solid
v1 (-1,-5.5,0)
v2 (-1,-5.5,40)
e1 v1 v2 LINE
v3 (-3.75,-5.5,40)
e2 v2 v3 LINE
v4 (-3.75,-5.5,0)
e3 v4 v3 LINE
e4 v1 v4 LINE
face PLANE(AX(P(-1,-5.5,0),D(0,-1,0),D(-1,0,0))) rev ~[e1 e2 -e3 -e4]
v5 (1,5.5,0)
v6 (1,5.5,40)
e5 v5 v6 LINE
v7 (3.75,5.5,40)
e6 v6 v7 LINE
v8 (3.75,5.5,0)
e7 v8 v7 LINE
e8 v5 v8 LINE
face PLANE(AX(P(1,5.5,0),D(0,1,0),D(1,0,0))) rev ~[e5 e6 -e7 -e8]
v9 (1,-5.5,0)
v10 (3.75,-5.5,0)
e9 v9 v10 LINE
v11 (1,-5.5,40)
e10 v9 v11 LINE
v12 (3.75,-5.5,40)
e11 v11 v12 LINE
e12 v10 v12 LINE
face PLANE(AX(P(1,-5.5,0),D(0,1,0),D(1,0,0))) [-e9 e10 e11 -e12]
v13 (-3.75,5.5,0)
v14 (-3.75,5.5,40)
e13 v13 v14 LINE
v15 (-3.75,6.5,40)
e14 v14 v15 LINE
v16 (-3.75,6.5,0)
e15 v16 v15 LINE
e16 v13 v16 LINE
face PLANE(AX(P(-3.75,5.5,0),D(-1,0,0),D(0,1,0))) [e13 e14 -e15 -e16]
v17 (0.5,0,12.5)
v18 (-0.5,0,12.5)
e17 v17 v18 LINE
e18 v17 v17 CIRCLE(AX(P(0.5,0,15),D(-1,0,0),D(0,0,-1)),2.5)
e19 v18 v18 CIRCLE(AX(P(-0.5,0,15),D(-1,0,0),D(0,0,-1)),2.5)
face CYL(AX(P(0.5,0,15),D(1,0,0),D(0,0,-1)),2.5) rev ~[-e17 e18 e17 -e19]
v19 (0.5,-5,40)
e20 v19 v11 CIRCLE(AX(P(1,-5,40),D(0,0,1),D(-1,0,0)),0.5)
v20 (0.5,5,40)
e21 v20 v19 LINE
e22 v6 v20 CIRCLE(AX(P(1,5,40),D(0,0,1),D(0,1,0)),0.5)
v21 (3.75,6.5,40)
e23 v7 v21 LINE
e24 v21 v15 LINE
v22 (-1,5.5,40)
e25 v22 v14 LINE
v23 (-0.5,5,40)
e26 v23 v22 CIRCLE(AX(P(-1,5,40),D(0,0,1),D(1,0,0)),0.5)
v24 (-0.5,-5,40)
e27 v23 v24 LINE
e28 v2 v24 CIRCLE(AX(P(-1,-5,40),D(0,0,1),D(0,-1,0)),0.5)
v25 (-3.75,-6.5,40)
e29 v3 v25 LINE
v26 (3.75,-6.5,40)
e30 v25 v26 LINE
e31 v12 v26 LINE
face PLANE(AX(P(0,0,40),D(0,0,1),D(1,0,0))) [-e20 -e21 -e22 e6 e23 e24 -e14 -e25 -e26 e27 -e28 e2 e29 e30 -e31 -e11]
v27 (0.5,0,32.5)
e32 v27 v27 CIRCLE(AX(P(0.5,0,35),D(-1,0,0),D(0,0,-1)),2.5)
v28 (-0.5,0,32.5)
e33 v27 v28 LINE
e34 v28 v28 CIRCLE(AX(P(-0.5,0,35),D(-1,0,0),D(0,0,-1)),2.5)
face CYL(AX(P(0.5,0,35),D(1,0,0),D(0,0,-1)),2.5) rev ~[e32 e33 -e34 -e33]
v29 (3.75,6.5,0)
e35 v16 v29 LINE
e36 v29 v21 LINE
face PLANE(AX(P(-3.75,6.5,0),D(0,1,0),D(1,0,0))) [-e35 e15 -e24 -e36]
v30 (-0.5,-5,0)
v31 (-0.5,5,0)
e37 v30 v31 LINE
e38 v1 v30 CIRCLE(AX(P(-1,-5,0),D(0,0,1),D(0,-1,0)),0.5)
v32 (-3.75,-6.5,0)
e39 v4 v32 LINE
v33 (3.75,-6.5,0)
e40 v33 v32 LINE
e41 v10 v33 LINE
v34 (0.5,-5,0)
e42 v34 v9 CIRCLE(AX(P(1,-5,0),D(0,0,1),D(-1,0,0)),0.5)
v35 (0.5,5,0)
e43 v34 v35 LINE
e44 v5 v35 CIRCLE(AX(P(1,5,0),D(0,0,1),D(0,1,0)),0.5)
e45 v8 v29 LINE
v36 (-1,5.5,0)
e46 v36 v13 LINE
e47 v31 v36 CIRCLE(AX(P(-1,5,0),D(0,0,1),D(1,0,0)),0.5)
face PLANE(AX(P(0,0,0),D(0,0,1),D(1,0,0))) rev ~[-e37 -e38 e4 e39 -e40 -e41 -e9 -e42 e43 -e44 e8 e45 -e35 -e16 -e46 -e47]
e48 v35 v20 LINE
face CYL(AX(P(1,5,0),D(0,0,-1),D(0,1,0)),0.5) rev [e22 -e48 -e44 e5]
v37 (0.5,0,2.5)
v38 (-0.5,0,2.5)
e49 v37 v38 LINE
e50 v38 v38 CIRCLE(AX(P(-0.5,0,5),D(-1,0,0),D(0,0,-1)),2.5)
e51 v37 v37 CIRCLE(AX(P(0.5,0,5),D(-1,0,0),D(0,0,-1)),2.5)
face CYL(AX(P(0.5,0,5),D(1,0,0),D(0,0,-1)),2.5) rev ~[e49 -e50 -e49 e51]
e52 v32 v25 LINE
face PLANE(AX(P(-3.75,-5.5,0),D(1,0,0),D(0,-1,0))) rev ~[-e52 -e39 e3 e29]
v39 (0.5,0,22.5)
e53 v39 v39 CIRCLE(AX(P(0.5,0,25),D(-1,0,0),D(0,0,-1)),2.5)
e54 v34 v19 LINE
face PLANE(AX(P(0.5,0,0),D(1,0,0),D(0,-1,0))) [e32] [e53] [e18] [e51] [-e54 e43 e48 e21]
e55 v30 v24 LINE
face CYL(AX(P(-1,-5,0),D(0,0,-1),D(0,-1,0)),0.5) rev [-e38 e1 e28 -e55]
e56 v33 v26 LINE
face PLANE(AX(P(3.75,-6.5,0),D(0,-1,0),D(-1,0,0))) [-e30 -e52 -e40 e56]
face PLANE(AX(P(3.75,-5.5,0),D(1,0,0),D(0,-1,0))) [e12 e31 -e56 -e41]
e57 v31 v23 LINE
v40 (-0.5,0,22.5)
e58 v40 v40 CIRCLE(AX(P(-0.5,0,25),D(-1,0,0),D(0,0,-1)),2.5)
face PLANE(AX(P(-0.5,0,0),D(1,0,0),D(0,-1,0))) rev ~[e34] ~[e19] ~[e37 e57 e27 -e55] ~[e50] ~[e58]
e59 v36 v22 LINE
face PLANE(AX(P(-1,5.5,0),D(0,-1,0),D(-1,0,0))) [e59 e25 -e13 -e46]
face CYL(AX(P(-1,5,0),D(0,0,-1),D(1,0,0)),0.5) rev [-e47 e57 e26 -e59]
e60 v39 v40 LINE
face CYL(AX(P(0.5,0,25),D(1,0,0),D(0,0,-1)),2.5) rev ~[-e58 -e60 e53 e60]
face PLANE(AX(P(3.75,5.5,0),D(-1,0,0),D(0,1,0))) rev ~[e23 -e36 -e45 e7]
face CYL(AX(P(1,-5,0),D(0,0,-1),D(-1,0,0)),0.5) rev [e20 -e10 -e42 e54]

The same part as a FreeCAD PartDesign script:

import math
import FreeCAD as App
import Part
import Sketcher
Q = App.Units.Quantity

doc = App.newDocument("Part")
params = doc.addObject("Spreadsheet::Sheet", "Params")
for row, (alias, value) in enumerate([
    ("sketch1_radius", "0.5 mm"),
    ("sketch1_height", "1 mm"),
    ("pad1_length", "40 mm"),
    ("sketch2_diameter", "5 mm"),
], start=1):
    params.set(f"A{row}", alias)
    params.set(f"B{row}", "=" + value)
    params.setAlias(f"B{row}", alias)

body = doc.addObject("PartDesign::Body", "Body")

# Sketch on XY plane
sketch1 = body.newObject("Sketcher::SketchObject", "Sketch")
sketch1.AttachmentSupport = (doc.getObject("XY_Plane"), [""])
sketch1.MapMode = "FlatFace"
sketch1.addGeometry([
    Part.LineSegment(App.Vector(0.5, -5, 0), App.Vector(0.5, 5, 0)),  # 0
    Part.ArcOfCircle(Part.Circle(App.Vector(1, 5, 0), App.Vector(0, 0, 1), 0.5), math.radians(90), math.radians(180)),  # 1
    Part.LineSegment(App.Vector(1, 5.5, 0), App.Vector(3.8, 5.5, 0)),  # 2
    Part.LineSegment(App.Vector(3.8, 5.5, 0), App.Vector(3.8, 6.5, 0)),  # 3
    Part.LineSegment(App.Vector(3.8, 6.5, 0), App.Vector(-3.8, 6.5, 0)),  # 4
    Part.LineSegment(App.Vector(-3.8, 6.5, 0), App.Vector(-3.8, 5.5, 0)),  # 5
    Part.LineSegment(App.Vector(-3.8, 5.5, 0), App.Vector(-1, 5.5, 0)),  # 6
    Part.ArcOfCircle(Part.Circle(App.Vector(-1, 5, 0), App.Vector(0, 0, 1), 0.5), math.radians(0), math.radians(90)),  # 7
    Part.LineSegment(App.Vector(-0.5, 5, 0), App.Vector(-0.5, -5, 0)),  # 8
    Part.ArcOfCircle(Part.Circle(App.Vector(-1, -5, 0), App.Vector(0, 0, 1), 0.5), math.radians(-90), math.radians(0)),  # 9
    Part.LineSegment(App.Vector(-1, -5.5, 0), App.Vector(-3.8, -5.5, 0)),  # 10
    Part.LineSegment(App.Vector(-3.8, -5.5, 0), App.Vector(-3.8, -6.5, 0)),  # 11
    Part.LineSegment(App.Vector(-3.8, -6.5, 0), App.Vector(3.8, -6.5, 0)),  # 12
    Part.LineSegment(App.Vector(3.8, -6.5, 0), App.Vector(3.8, -5.5, 0)),  # 13
    Part.LineSegment(App.Vector(3.8, -5.5, 0), App.Vector(1, -5.5, 0)),  # 14
    Part.ArcOfCircle(Part.Circle(App.Vector(1, -5, 0), App.Vector(0, 0, 1), 0.5), math.radians(180), math.radians(270)),  # 15
], False)
sketch1.addConstraint([
    Sketcher.Constraint("Tangent", 0, 2, 1, 2),
    Sketcher.Constraint("Tangent", 1, 1, 2, 1),
    Sketcher.Constraint("Coincident", 2, 2, 3, 1),
    Sketcher.Constraint("Coincident", 3, 2, 4, 1),
    Sketcher.Constraint("Coincident", 4, 2, 5, 1),
    Sketcher.Constraint("Coincident", 5, 2, 6, 1),
    Sketcher.Constraint("Tangent", 6, 2, 7, 2),
    Sketcher.Constraint("Tangent", 7, 1, 8, 1),
    Sketcher.Constraint("Tangent", 8, 2, 9, 2),
    Sketcher.Constraint("Tangent", 9, 1, 10, 1),
    Sketcher.Constraint("Coincident", 10, 2, 11, 1),
    Sketcher.Constraint("Coincident", 11, 2, 12, 1),
    Sketcher.Constraint("Coincident", 12, 2, 13, 1),
    Sketcher.Constraint("Coincident", 13, 2, 14, 1),
    Sketcher.Constraint("Tangent", 14, 2, 15, 2),
    Sketcher.Constraint("Tangent", 15, 1, 0, 1),
    Sketcher.Constraint("Vertical", 0),
    Sketcher.Constraint("Horizontal", 2),
    Sketcher.Constraint("Vertical", 3),
    Sketcher.Constraint("Horizontal", 4),
    Sketcher.Constraint("Vertical", 5),
    Sketcher.Constraint("Horizontal", 6),
    Sketcher.Constraint("Vertical", 8),
    Sketcher.Constraint("Horizontal", 10),
    Sketcher.Constraint("Vertical", 11),
    Sketcher.Constraint("Horizontal", 12),
    Sketcher.Constraint("Vertical", 13),
    Sketcher.Constraint("Horizontal", 14),
    Sketcher.Constraint("Equal", 1, 7),
    Sketcher.Constraint("Equal", 7, 9),
    Sketcher.Constraint("Equal", 9, 15),
    Sketcher.Constraint("Symmetric", 1, 3, 9, 3, -1, 1),
    Sketcher.Constraint("Symmetric", 3, 2, 11, 2, -1, 1),
    Sketcher.Constraint("Symmetric", 5, 2, 13, 2, -1, 1),
    Sketcher.Constraint("Symmetric", 2, 2, 5, 2, -2),
    Sketcher.Constraint("Radius", 1, Q("0.5 mm")),
    Sketcher.Constraint("DistanceY", 3, 1, 3, 2, Q("1 mm")),
    Sketcher.Constraint("DistanceX", -1, 1, 1, 3, Q("1 mm")),
    Sketcher.Constraint("DistanceY", -1, 1, 1, 1, Q("5.5 mm")),
    Sketcher.Constraint("DistanceX", 0, 2, 2, 2, Q("3.25 mm")),
])
sketch1.setExpression("Constraints[35]", "Params.sketch1_radius")
sketch1.setExpression("Constraints[36]", "Params.sketch1_height")
pad1 = body.newObject("PartDesign::Pad", "Pad")
pad1.Profile = sketch1
pad1.setExpression("Length", "Params.pad1_length")

# Sketch on YZ plane
sketch2 = body.newObject("Sketcher::SketchObject", "Sketch001")
sketch2.AttachmentSupport = (doc.getObject("YZ_Plane"), [""])
sketch2.MapMode = "FlatFace"
sketch2.AttachmentOffset = App.Placement(App.Vector(0, 0, 0.5), App.Rotation())
sketch2.addGeometry([
    Part.Circle(App.Vector(0, 35, 0), App.Vector(0, 0, 1), 2.5),
    Part.Circle(App.Vector(0, 25, 0), App.Vector(0, 0, 1), 2.5),
    Part.Circle(App.Vector(0, 15, 0), App.Vector(0, 0, 1), 2.5),
    Part.Circle(App.Vector(0, 5, 0), App.Vector(0, 0, 1), 2.5),
], False)
sketch2.addConstraint([
    Sketcher.Constraint("Equal", 0, 1),
    Sketcher.Constraint("Equal", 1, 2),
    Sketcher.Constraint("Equal", 2, 3),
    Sketcher.Constraint("PointOnObject", 0, 3, -2),
    Sketcher.Constraint("PointOnObject", 1, 3, -2),
    Sketcher.Constraint("PointOnObject", 2, 3, -2),
    Sketcher.Constraint("PointOnObject", 3, 3, -2),
    Sketcher.Constraint("Diameter", 0, Q("5 mm")),
    Sketcher.Constraint("DistanceY", -1, 1, 0, 3, Q("35 mm")),
    Sketcher.Constraint("DistanceY", -1, 1, 1, 3, Q("25 mm")),
    Sketcher.Constraint("DistanceY", -1, 1, 2, 3, Q("15 mm")),
    Sketcher.Constraint("DistanceY", -1, 1, 3, 3, Q("5 mm")),
])
sketch2.setExpression("Constraints[7]", "Params.sketch2_diameter")
pocket1 = body.newObject("PartDesign::Pocket", "Pocket")
pocket1.Profile = sketch2
pocket1.Type = "ThroughAll"

doc.recompute()
